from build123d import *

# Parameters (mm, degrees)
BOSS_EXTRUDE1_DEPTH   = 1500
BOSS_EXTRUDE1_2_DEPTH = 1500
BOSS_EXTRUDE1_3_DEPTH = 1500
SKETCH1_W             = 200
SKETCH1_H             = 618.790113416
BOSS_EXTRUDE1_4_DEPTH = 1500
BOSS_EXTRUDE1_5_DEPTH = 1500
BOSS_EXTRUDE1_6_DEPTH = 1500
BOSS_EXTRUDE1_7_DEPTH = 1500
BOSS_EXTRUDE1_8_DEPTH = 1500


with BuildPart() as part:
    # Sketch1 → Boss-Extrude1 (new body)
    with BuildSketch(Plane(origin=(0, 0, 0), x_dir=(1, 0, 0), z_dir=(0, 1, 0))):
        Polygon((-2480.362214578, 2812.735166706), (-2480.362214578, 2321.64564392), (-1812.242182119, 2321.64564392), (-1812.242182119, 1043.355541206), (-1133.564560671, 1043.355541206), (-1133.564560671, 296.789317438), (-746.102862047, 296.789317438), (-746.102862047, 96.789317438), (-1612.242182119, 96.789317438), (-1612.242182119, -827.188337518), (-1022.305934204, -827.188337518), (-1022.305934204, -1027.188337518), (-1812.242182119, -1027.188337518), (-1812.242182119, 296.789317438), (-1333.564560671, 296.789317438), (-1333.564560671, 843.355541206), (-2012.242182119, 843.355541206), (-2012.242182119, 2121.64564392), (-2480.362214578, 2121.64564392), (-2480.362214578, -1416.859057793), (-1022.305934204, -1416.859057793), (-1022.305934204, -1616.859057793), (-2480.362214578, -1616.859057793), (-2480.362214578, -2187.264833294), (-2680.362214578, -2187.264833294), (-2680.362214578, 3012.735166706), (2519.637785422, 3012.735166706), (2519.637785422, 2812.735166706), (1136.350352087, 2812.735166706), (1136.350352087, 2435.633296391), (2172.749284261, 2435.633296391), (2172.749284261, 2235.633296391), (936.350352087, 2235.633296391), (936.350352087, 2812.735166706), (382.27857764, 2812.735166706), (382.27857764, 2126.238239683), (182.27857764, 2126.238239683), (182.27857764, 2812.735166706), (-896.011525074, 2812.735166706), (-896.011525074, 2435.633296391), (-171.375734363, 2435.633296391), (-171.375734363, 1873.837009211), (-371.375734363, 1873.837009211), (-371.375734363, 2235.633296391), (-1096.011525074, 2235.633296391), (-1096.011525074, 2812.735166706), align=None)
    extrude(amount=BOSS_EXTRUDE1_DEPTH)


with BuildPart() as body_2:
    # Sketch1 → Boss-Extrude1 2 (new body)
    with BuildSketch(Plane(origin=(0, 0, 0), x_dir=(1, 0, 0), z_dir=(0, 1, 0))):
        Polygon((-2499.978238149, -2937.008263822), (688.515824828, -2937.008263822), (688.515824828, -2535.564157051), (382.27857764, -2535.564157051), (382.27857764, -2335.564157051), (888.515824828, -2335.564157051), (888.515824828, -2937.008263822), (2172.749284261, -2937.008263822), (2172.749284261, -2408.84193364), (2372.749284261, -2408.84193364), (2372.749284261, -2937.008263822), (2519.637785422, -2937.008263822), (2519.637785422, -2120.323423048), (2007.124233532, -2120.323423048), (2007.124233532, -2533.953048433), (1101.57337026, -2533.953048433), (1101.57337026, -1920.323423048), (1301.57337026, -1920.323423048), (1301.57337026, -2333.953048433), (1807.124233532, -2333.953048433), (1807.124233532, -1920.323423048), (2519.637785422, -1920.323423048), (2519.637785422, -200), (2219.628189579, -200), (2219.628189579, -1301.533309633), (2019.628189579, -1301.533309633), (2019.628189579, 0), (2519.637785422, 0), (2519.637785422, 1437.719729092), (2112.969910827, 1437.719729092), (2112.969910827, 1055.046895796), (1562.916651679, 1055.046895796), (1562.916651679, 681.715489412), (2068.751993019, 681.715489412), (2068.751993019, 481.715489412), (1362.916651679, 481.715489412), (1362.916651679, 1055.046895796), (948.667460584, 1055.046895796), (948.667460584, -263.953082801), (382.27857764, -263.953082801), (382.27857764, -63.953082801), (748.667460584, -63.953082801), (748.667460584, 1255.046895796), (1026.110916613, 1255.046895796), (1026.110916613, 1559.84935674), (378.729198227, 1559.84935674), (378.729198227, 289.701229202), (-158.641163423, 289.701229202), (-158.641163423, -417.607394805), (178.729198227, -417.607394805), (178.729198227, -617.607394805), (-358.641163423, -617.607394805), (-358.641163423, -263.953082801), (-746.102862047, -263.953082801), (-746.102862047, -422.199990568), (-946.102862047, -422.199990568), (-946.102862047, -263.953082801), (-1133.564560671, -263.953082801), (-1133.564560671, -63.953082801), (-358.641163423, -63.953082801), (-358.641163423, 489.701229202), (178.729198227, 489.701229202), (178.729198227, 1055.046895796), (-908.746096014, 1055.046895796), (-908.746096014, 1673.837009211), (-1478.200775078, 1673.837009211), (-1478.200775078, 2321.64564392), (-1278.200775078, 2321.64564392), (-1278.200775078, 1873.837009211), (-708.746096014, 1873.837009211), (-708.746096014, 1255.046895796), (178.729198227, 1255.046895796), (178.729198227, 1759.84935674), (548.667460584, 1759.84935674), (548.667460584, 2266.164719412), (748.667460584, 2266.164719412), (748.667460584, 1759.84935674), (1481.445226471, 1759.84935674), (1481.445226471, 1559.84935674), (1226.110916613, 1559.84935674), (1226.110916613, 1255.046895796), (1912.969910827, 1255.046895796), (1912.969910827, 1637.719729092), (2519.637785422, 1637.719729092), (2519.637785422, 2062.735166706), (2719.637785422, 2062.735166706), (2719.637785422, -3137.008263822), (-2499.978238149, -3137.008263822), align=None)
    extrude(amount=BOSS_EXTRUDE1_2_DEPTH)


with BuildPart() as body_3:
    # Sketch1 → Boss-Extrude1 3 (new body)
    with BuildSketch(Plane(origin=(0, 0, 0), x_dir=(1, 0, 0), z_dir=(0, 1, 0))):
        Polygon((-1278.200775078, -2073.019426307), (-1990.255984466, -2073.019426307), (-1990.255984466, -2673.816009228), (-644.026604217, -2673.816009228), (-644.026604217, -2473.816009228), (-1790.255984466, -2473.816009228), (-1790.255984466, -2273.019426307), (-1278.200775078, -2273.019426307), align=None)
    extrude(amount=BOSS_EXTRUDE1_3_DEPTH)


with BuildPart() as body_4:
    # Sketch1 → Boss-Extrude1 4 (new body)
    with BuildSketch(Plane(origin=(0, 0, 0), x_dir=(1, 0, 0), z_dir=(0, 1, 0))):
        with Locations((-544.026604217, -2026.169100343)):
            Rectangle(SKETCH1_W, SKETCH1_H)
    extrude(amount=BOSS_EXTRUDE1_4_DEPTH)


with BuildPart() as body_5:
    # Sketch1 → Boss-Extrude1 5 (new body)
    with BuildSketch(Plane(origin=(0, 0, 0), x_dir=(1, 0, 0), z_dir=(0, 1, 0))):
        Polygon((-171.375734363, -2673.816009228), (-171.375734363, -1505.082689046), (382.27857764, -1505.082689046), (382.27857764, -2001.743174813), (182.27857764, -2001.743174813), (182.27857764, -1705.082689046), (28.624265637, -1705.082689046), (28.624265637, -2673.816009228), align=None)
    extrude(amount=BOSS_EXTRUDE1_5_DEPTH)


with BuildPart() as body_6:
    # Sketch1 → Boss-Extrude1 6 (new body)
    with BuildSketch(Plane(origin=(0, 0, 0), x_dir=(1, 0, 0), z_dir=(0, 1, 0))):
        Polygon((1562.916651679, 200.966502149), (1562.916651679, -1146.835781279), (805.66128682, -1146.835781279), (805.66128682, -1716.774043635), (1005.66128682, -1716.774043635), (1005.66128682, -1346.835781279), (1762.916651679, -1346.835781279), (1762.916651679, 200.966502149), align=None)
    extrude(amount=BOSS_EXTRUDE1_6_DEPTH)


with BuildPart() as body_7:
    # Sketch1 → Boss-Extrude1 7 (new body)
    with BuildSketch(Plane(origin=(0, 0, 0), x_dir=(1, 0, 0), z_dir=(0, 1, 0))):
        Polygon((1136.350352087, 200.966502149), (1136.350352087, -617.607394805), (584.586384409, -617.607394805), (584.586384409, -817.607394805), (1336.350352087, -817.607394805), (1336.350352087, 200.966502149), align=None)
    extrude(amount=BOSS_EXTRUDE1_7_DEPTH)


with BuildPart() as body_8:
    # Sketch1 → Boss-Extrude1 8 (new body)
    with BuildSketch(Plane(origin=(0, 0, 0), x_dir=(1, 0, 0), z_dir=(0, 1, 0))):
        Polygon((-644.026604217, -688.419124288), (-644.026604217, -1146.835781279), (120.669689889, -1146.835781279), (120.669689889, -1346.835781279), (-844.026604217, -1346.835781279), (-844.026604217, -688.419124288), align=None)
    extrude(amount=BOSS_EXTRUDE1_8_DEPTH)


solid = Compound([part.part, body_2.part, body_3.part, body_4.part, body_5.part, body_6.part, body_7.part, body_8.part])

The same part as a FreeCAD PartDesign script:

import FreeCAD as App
import Part
import Sketcher
from FreeCAD import Vector


def add_polygon(sketch, points):
    """Adds a closed chain of lines whose ends are joined by coincident constraints."""
    first, n = sketch.GeometryCount, len(points)
    for a, b in zip(points, points[1:] + points[:1]):
        sketch.addGeometry(Part.LineSegment(App.Vector(*a, 0), App.Vector(*b, 0)), False)
    for i in range(n):
        sketch.addConstraint(Sketcher.Constraint("Coincident", first + i, 2, first + (i + 1) % n, 1))

doc = App.newDocument("Part")
body = doc.addObject("PartDesign::Body", "Body")

sketch1 = body.newObject("Sketcher::SketchObject", "Sketch")
sketch1.AttachmentSupport = (doc.getObject("XZ_Plane"), [""])
sketch1.MapMode = "FlatFace"
add_polygon(sketch1, [(-2480, -2322), (-2480, -2813), (-1096, -2813), (-1096, -2236), (-371, -2236), (-371, -1874), (-171, -1874), (-171, -2436), (-896, -2436), (-896, -2813), (182, -2813), (182, -2126), (382, -2126), (382, -2813), (936, -2813), (936, -2236), (2173, -2236), (2173, -2436), (1136, -2436), (1136, -2813), (2520, -2813), (2520, -3013), (-2680, -3013), (-2680, 2187), (-2480, 2187), (-2480, 1617), (-1022, 1617), (-1022, 1417), (-2480, 1417), (-2480, -2122), (-2012, -2122), (-2012, -843), (-1334, -843), (-1334, -297), (-1812, -297), (-1812, 1027), (-1022, 1027), (-1022, 827), (-1612, 827), (-1612, -97), (-746, -97), (-746, -297), (-1134, -297), (-1134, -1043), (-1812, -1043), (-1812, -2322)])
sketch1.addConstraint([
    Sketcher.Constraint("Vertical", 0),
    Sketcher.Constraint("Horizontal", 1),
    Sketcher.Constraint("Vertical", 2),
    Sketcher.Constraint("Horizontal", 3),
    Sketcher.Constraint("Vertical", 4),
    Sketcher.Constraint("Horizontal", 5),
    Sketcher.Constraint("Vertical", 6),
    Sketcher.Constraint("Horizontal", 7),
    Sketcher.Constraint("Vertical", 8),
    Sketcher.Constraint("Horizontal", 9),
    Sketcher.Constraint("Vertical", 10),
    Sketcher.Constraint("Horizontal", 11),
    Sketcher.Constraint("Vertical", 12),
    Sketcher.Constraint("Horizontal", 13),
    Sketcher.Constraint("Vertical", 14),
    Sketcher.Constraint("Horizontal", 15),
    Sketcher.Constraint("Vertical", 16),
    Sketcher.Constraint("Horizontal", 17),
    Sketcher.Constraint("Vertical", 18),
    Sketcher.Constraint("Horizontal", 19),
    Sketcher.Constraint("Vertical", 20),
    Sketcher.Constraint("Horizontal", 21),
    Sketcher.Constraint("Vertical", 22),
    Sketcher.Constraint("Horizontal", 23),
    Sketcher.Constraint("Vertical", 24),
    Sketcher.Constraint("Horizontal", 25),
    Sketcher.Constraint("Vertical", 26),
    Sketcher.Constraint("Horizontal", 27),
    Sketcher.Constraint("Vertical", 28),
    Sketcher.Constraint("Horizontal", 29),
    Sketcher.Constraint("Vertical", 30),
    Sketcher.Constraint("Horizontal", 31),
    Sketcher.Constraint("Vertical", 32),
    Sketcher.Constraint("Horizontal", 33),
    Sketcher.Constraint("Vertical", 34),
    Sketcher.Constraint("Horizontal", 35),
    Sketcher.Constraint("Vertical", 36),
    Sketcher.Constraint("Horizontal", 37),
    Sketcher.Constraint("Vertical", 38),
    Sketcher.Constraint("Horizontal", 39),
    Sketcher.Constraint("Vertical", 40),
    Sketcher.Constraint("Horizontal", 41),
    Sketcher.Constraint("Vertical", 42),
    Sketcher.Constraint("Horizontal", 43),
    Sketcher.Constraint("Vertical", 44),
    Sketcher.Constraint("Horizontal", 45),
    Sketcher.Constraint("Horizontal", 1, 2, 8, 2),
    Sketcher.Constraint("Horizontal", 9, 2, 12, 2),
    Sketcher.Constraint("Horizontal", 3, 2, 14, 2),
    Sketcher.Constraint("Horizontal", 7, 2, 16, 2),
    Sketcher.Constraint("Horizontal", 13, 2, 18, 2),
    Sketcher.Constraint("Horizontal", 33, 2, 40, 2),
    Sketcher.Constraint("Vertical", 0, 2, 23, 2),
    Sketcher.Constraint("Vertical", 24, 2, 27, 2),
    Sketcher.Constraint("Vertical", 26, 2, 35, 2),
    Sketcher.Constraint("Vertical", 34, 2, 43, 2),
    Sketcher.Constraint("Equal", 3, 7),
    Sketcher.Constraint("Equal", 5, 11),
    Sketcher.Constraint("Equal", 11, 23),
    Sketcher.Constraint("Equal", 31, 43),
    Sketcher.Constraint("Equal", 23, 16),
    Sketcher.Constraint("Equal", 16, 20),
    Sketcher.Constraint("Equal", 21, 22),
    Sketcher.Constraint("Equal", 20, 26),
    Sketcher.Constraint("Equal", 26, 36),
    Sketcher.Constraint("Equal", 36, 40),
    Sketcher.Constraint("Equal", 30, 44),
    Sketcher.Constraint("DistanceX", 5, 1, 5, 2, 200.0),
    Sketcher.Constraint("DistanceX", 21, 2, 21, 1, 5200.0),
    Sketcher.Constraint("DistanceX", 14, 2, 17, 2, 200.0),
    Sketcher.Constraint("DistanceX", 30, 2, 33, 2, 200.0),
    Sketcher.Constraint("DistanceX", 34, 2, 37, 2, 200.0),
    Sketcher.Constraint("DistanceY", 42, 2, 31, 2, 200.0),
    Sketcher.Constraint("DistanceX", 41, 2, 41, 1, 387.461699),
    Sketcher.Constraint("DistanceY", 28, 2, 28, 1, 3538.504702),
    Sketcher.Constraint("DistanceX", 1, 1, 1, 2, 1384.35069),
    Sketcher.Constraint("DistanceX", 3, 1, 3, 2, 724.635791),
    Sketcher.Constraint("DistanceX", 25, 1, 25, 2, 1458.05628),
    Sketcher.Constraint("DistanceX", 31, 1, 31, 2, 678.677621),
    Sketcher.Constraint("DistanceY", 2, 1, 2, 2, 577.10187),
    Sketcher.Constraint("DistanceX", 16, 2, 19, 2, 346.888501),
    Sketcher.Constraint("DistanceX", 9, 1, 9, 2, 1078.290103),
    Sketcher.Constraint("DistanceX", 13, 1, 13, 2, 554.071774),
    Sketcher.Constraint("DistanceX", 29, 1, 29, 2, 468.120032),
    Sketcher.Constraint("DistanceY", 0, 2, 0, 1, 491.089523),
    Sketcher.Constraint("DistanceY", 4, 1, 4, 2, 361.796287),
    Sketcher.Constraint("DistanceY", 10, 1, 10, 2, 686.496927),
    Sketcher.Constraint("DistanceY", 30, 1, 30, 2, 1278.290103),
    Sketcher.Constraint("DistanceY", 32, 1, 32, 2, 546.566224),
    Sketcher.Constraint("DistanceY", 34, 1, 34, 2, 1323.977655),
    Sketcher.Constraint("DistanceY", 4, 2, -1, 1, 1873.837009),
    Sketcher.Constraint("DistanceX", 31, 2, -1, 1, 1333.564561),
])
pad1 = body.newObject("PartDesign::Pad", "Pad")
pad1.Profile = sketch1
pad1.Length = 1500
pad1.Reversed = True
body2 = doc.addObject("PartDesign::Body", "Body001")

sketch2 = body2.newObject("Sketcher::SketchObject", "Sketch001")
sketch2.AttachmentSupport = (doc.getObject("XZ_Plane001"), [""])
sketch2.MapMode = "FlatFace"
add_polygon(sketch2, [(689, 2937), (-2500, 2937), (-2500, 3137), (2720, 3137), (2720, -2063), (2520, -2063), (2520, -1638), (1913, -1638), (1913, -1255), (1226, -1255), (1226, -1560), (1481, -1560), (1481, -1760), (749, -1760), (749, -2266), (549, -2266), (549, -1760), (179, -1760), (179, -1255), (-709, -1255), (-709, -1874), (-1278, -1874), (-1278, -2322), (-1478, -2322), (-1478, -1674), (-909, -1674), (-909, -1055), (179, -1055), (179, -490), (-359, -490), (-359, 64), (-1134, 64), (-1134, 264), (-946, 264), (-946, 422), (-746, 422), (-746, 264), (-359, 264), (-359, 618), (179, 618), (179, 418), (-159, 418), (-159, -290), (379, -290), (379, -1560), (1026, -1560), (1026, -1255), (749, -1255), (749, 64), (382, 64), (382, 264), (949, 264), (949, -1055), (1363, -1055), (1363, -482), (2069, -482), (2069, -682), (1563, -682), (1563, -1055), (2113, -1055), (2113, -1438), (2520, -1438), (2520, 0), (2020, 0), (2020, 1302), (2220, 1302), (2220, 200), (2520, 200), (2520, 1920), (1807, 1920), (1807, 2334), (1302, 2334), (1302, 1920), (1102, 1920), (1102, 2534), (2007, 2534), (2007, 2120), (2520, 2120), (2520, 2937), (2373, 2937), (2373, 2409), (2173, 2409), (2173, 2937), (889, 2937), (889, 2336), (382, 2336), (382, 2536), (689, 2536)])
sketch2.addConstraint([
    Sketcher.Constraint("Horizontal", 0),
    Sketcher.Constraint("Vertical", 1),
    Sketcher.Constraint("Horizontal", 2),
    Sketcher.Constraint("Vertical", 3),
    Sketcher.Constraint("Horizontal", 4),
    Sketcher.Constraint("Vertical", 5),
    Sketcher.Constraint("Horizontal", 6),
    Sketcher.Constraint("Vertical", 7),
    Sketcher.Constraint("Horizontal", 8),
    Sketcher.Constraint("Vertical", 9),
    Sketcher.Constraint("Horizontal", 10),
    Sketcher.Constraint("Vertical", 11),
    Sketcher.Constraint("Horizontal", 12),
    Sketcher.Constraint("Vertical", 13),
    Sketcher.Constraint("Horizontal", 14),
    Sketcher.Constraint("Vertical", 15),
    Sketcher.Constraint("Horizontal", 16),
    Sketcher.Constraint("Vertical", 17),
    Sketcher.Constraint("Horizontal", 18),
    Sketcher.Constraint("Vertical", 19),
    Sketcher.Constraint("Horizontal", 20),
    Sketcher.Constraint("Vertical", 21),
    Sketcher.Constraint("Horizontal", 22),
    Sketcher.Constraint("Vertical", 23),
    Sketcher.Constraint("Horizontal", 24),
    Sketcher.Constraint("Vertical", 25),
    Sketcher.Constraint("Horizontal", 26),
    Sketcher.Constraint("Vertical", 27),
    Sketcher.Constraint("Horizontal", 28),
    Sketcher.Constraint("Vertical", 29),
    Sketcher.Constraint("Horizontal", 30),
    Sketcher.Constraint("Vertical", 31),
    Sketcher.Constraint("Horizontal", 32),
    Sketcher.Constraint("Vertical", 33),
    Sketcher.Constraint("Horizontal", 34),
    Sketcher.Constraint("Vertical", 35),
    Sketcher.Constraint("Horizontal", 36),
    Sketcher.Constraint("Vertical", 37),
    Sketcher.Constraint("Horizontal", 38),
    Sketcher.Constraint("Vertical", 39),
    Sketcher.Constraint("Horizontal", 40),
    Sketcher.Constraint("Vertical", 41),
    Sketcher.Constraint("Horizontal", 42),
    Sketcher.Constraint("Vertical", 43),
    Sketcher.Constraint("Horizontal", 44),
    Sketcher.Constraint("Vertical", 45),
    Sketcher.Constraint("Horizontal", 46),
    Sketcher.Constraint("Vertical", 47),
    Sketcher.Constraint("Horizontal", 48),
    Sketcher.Constraint("Vertical", 49),
    Sketcher.Constraint("Horizontal", 50),
    Sketcher.Constraint("Vertical", 51),
    Sketcher.Constraint("Horizontal", 52),
    Sketcher.Constraint("Vertical", 53),
    Sketcher.Constraint("Horizontal", 54),
    Sketcher.Constraint("Vertical", 55),
    Sketcher.Constraint("Horizontal", 56),
    Sketcher.Constraint("Vertical", 57),
    Sketcher.Constraint("Horizontal", 58),
    Sketcher.Constraint("Vertical", 59),
    Sketcher.Constraint("Horizontal", 60),
    Sketcher.Constraint("Vertical", 61),
    Sketcher.Constraint("Horizontal", 62),
    Sketcher.Constraint("Vertical", 63),
    Sketcher.Constraint("Horizontal", 64),
    Sketcher.Constraint("Vertical", 65),
    Sketcher.Constraint("Horizontal", 66),
    Sketcher.Constraint("Vertical", 67),
    Sketcher.Constraint("Horizontal", 68),
    Sketcher.Constraint("Vertical", 69),
    Sketcher.Constraint("Horizontal", 70),
    Sketcher.Constraint("Vertical", 71),
    Sketcher.Constraint("Horizontal", 72),
    Sketcher.Constraint("Vertical", 73),
    Sketcher.Constraint("Horizontal", 74),
    Sketcher.Constraint("Vertical", 75),
    Sketcher.Constraint("Horizontal", 76),
    Sketcher.Constraint("Vertical", 77),
    Sketcher.Constraint("Horizontal", 78),
    Sketcher.Constraint("Vertical", 79),
    Sketcher.Constraint("Horizontal", 80),
    Sketcher.Constraint("Vertical", 81),
    Sketcher.Constraint("Horizontal", 82),
    Sketcher.Constraint("Vertical", 83),
    Sketcher.Constraint("Horizontal", 84),
    Sketcher.Constraint("Vertical", 85),
    Sketcher.Constraint("Horizontal", 86),
    Sketcher.Constraint("Vertical", 87),
    Sketcher.Constraint("PointOnObject", 61, 2, -1),
    Sketcher.Constraint("Horizontal", 12, 2, 15, 2),
    Sketcher.Constraint("Horizontal", 8, 2, 17, 2),
    Sketcher.Constraint("Horizontal", 32, 2, 35, 2),
    Sketcher.Constraint("Horizontal", 10, 2, 43, 2),
    Sketcher.Constraint("Horizontal", 18, 2, 45, 2),
    Sketcher.Constraint("Horizontal", 30, 2, 47, 2),
    Sketcher.Constraint("Horizontal", 36, 2, 49, 2),
    Sketcher.Constraint("Horizontal", 26, 2, 51, 2),
    Sketcher.Constraint("Horizontal", 52, 2, 57, 2),
    Sketcher.Constraint("Horizontal", 68, 2, 71, 2),
    Sketcher.Constraint("Horizontal", 0, 2, 77, 2),
    Sketcher.Constraint("Horizontal", 78, 2, 81, 2),
    Sketcher.Constraint("Vertical", 17, 2, 26, 2),
    Sketcher.Constraint("Vertical", 29, 2, 36, 2),
    Sketcher.Constraint("Vertical", 27, 2, 38, 2),
    Sketcher.Constraint("Vertical", 13, 2, 46, 2),
    Sketcher.Constraint("Vertical", 5, 2, 60, 2),
    Sketcher.Constraint("Vertical", 61, 2, 66, 2),
    Sketcher.Constraint("Vertical", 67, 2, 76, 2),
    Sketcher.Constraint("Vertical", 49, 2, 84, 2),
    Sketcher.Constraint("Equal", 4, 14),
    Sketcher.Constraint("Equal", 14, 22),
    Sketcher.Constraint("Equal", 20, 24),
    Sketcher.Constraint("Equal", 22, 34),
    Sketcher.Constraint("Equal", 38, 42),
    Sketcher.Constraint("Equal", 34, 64),
    Sketcher.Constraint("Equal", 64, 72),
    Sketcher.Constraint("Equal", 72, 80),
    Sketcher.Constraint("Equal", 80, 1),
    Sketcher.Constraint("Equal", 1, 11),
    Sketcher.Constraint("Equal", 19, 25),
    Sketcher.Constraint("Equal", 11, 31),
    Sketcher.Constraint("Equal", 31, 39),
    Sketcher.Constraint("Equal", 47, 51),
    Sketcher.Constraint("Equal", 49, 55),
    Sketcher.Constraint("Equal", 7, 59),
    Sketcher.Constraint("Equal", 71, 75),
    Sketcher.Constraint("Equal", 55, 85),
    Sketcher.Constraint("DistanceX", 4, 2, 4, 1, 200.0),
    Sketcher.Constraint("DistanceY", -1, 1, 65, 2, 200.0),
    Sketcher.Constraint("DistanceX", 32, 1, 32, 2, 187.461699),
    Sketcher.Constraint("DistanceX", 36, 1, 36, 2, 387.461699),
    Sketcher.Constraint("DistanceX", 78, 2, 78, 1, 146.888501),
    Sketcher.Constraint("DistanceX", 10, 1, 10, 2, 255.33431),
    Sketcher.Constraint("DistanceX", 20, 2, 20, 1, 569.454679),
    Sketcher.Constraint("DistanceX", 28, 2, 28, 1, 537.370362),
    Sketcher.Constraint("DistanceX", 40, 2, 40, 1, 337.370362),
    Sketcher.Constraint("DistanceX", 44, 1, 44, 2, 647.381718),
    Sketcher.Constraint("DistanceX", 52, 1, 52, 2, 414.249191),
    Sketcher.Constraint("DistanceX", 54, 1, 54, 2, 705.835341),
    Sketcher.Constraint("DistanceX", 56, 2, 56, 1, 505.835341),
    Sketcher.Constraint("DistanceX", 58, 1, 58, 2, 550.053259),
    Sketcher.Constraint("DistanceX", 68, 2, 68, 1, 712.513552),
    Sketcher.Constraint("DistanceX", 76, 1, 76, 2, 512.513552),
    Sketcher.Constraint("DistanceX", 82, 2, 82, 1, 1284.233459),
    Sketcher.Constraint("DistanceY", 3, 2, 3, 1, 5199.743431),
    Sketcher.Constraint("DistanceY", 9, 2, 9, 1, 304.802461),
    Sketcher.Constraint("DistanceY", 47, 1, 47, 2, 1318.999979),
    Sketcher.Constraint("DistanceY", 61, 1, 61, 2, 1437.719729),
    Sketcher.Constraint("DistanceY", 63, 1, 63, 2, 1301.53331),
    Sketcher.Constraint("DistanceY", 77, 1, 77, 2, 816.684841),
    Sketcher.Constraint("DistanceY", 79, 2, 79, 1, 528.16633),
    Sketcher.Constraint("DistanceX", -1, 1, 16, 2, 178.729198),
    Sketcher.Constraint("DistanceX", 0, 2, 0, 1, 3188.494063),
    Sketcher.Constraint("DistanceX", 2, 1, 2, 2, 5219.616024),
    Sketcher.Constraint("DistanceX", 6, 2, 6, 1, 606.667875),
    Sketcher.Constraint("DistanceX", 8, 2, 8, 1, 686.858994),
    Sketcher.Constraint("DistanceX", 12, 2, 12, 1, 732.777766),
    Sketcher.Constraint("DistanceX", 16, 2, 16, 1, 369.938262),
    Sketcher.Constraint("DistanceX", 18, 2, 18, 1, 887.475294),
    Sketcher.Constraint("DistanceX", 48, 2, 48, 1, 366.388883),
    Sketcher.Constraint("DistanceX", 50, 1, 50, 2, 566.388883),
    Sketcher.Constraint("DistanceX", 62, 2, 62, 1, 500.009596),
    Sketcher.Constraint("DistanceX", 70, 2, 70, 1, 505.550863),
    Sketcher.Constraint("DistanceY", 5, 1, 5, 2, 425.015438),
    Sketcher.Constraint("DistanceY", 7, 1, 7, 2, 382.672833),
    Sketcher.Constraint("DistanceY", 13, 2, 13, 1, 506.315363),
    Sketcher.Constraint("DistanceY", 19, 2, 19, 1, 618.790113),
    Sketcher.Constraint("DistanceY", 21, 2, 21, 1, 447.808635),
    Sketcher.Constraint("DistanceY", 27, 1, 27, 2, 565.345667),
    Sketcher.Constraint("DistanceY", 33, 1, 33, 2, 158.246908),
    Sketcher.Constraint("DistanceY", 37, 1, 37, 2, 353.654312),
    Sketcher.Constraint("DistanceY", 41, 2, 41, 1, 707.308624),
    Sketcher.Constraint("DistanceY", 53, 1, 53, 2, 573.331406),
    Sketcher.Constraint("DistanceY", 67, 1, 67, 2, 1720.323423),
    Sketcher.Constraint("DistanceY", 69, 1, 69, 2, 413.629625),
    Sketcher.Constraint("DistanceY", 83, 2, 83, 1, 601.444107),
])
pad2 = body2.newObject("PartDesign::Pad", "Pad001")
pad2.Profile = sketch2
pad2.Length = 1500
pad2.Reversed = True
body3 = doc.addObject("PartDesign::Body", "Body002")

sketch3 = body3.newObject("Sketcher::SketchObject", "Sketch002")
sketch3.AttachmentSupport = (doc.getObject("XZ_Plane002"), [""])
sketch3.MapMode = "FlatFace"
add_polygon(sketch3, [(-1278, 2073), (-1990, 2073), (-1990, 2674), (-644, 2674), (-644, 2474), (-1790, 2474), (-1790, 2273), (-1278, 2273)])
sketch3.addConstraint([
    Sketcher.Constraint("Horizontal", 0),
    Sketcher.Constraint("Vertical", 1),
    Sketcher.Constraint("Horizontal", 2),
    Sketcher.Constraint("Vertical", 3),
    Sketcher.Constraint("Horizontal", 4),
    Sketcher.Constraint("Vertical", 5),
    Sketcher.Constraint("Horizontal", 6),
    Sketcher.Constraint("Vertical", 7),
    Sketcher.Constraint("Equal", 3, 7),
    Sketcher.Constraint("DistanceY", 3, 2, 3, 1, 200.0),
    Sketcher.Constraint("DistanceX", 1, 2, 4, 2, 200.0),
    Sketcher.Constraint("DistanceX", 0, 2, 0, 1, 712.055209),
    Sketcher.Constraint("DistanceX", 2, 1, 2, 2, 1346.22938),
    Sketcher.Constraint("DistanceY", 1, 1, 1, 2, 600.796583),
    Sketcher.Constraint("DistanceY", -1, 1, 1, 2, 2673.816009),
    Sketcher.Constraint("DistanceX", 0, 2, -1, 1, 1990.255984),
])
pad3 = body3.newObject("PartDesign::Pad", "Pad002")
pad3.Profile = sketch3
pad3.Length = 1500
pad3.Reversed = True
body4 = doc.addObject("PartDesign::Body", "Body003")

sketch4 = body4.newObject("Sketcher::SketchObject", "Sketch003")
sketch4.AttachmentSupport = (doc.getObject("XZ_Plane003"), [""])
sketch4.MapMode = "FlatFace"
add_polygon(sketch4, [(-644, 1717), (-644, 2336), (-444, 2336), (-444, 1717)])
sketch4.addConstraint([
    Sketcher.Constraint("Vertical", 0),
    Sketcher.Constraint("Horizontal", 1),
    Sketcher.Constraint("Vertical", 2),
    Sketcher.Constraint("Horizontal", 3),
    Sketcher.Constraint("DistanceX", 1, 1, 1, 2, 200.0),
    Sketcher.Constraint("DistanceY", 0, 1, 0, 2, 618.790113),
    Sketcher.Constraint("DistanceX", 0, 2, -1, 1, 644.026604),
    Sketcher.Constraint("DistanceY", -1, 1, 0, 2, 2335.564157),
])
pad4 = body4.newObject("PartDesign::Pad", "Pad003")
pad4.Profile = sketch4
pad4.Length = 1500
pad4.Reversed = True
body5 = doc.addObject("PartDesign::Body", "Body004")

sketch5 = body5.newObject("Sketcher::SketchObject", "Sketch004")
sketch5.AttachmentSupport = (doc.getObject("XZ_Plane004"), [""])
sketch5.MapMode = "FlatFace"
add_polygon(sketch5, [(-171, 1505), (-171, 2674), (29, 2674), (29, 1705), (182, 1705), (182, 2002), (382, 2002), (382, 1505)])
sketch5.addConstraint([
    Sketcher.Constraint("Vertical", 0),
    Sketcher.Constraint("Horizontal", 1),
    Sketcher.Constraint("Vertical", 2),
    Sketcher.Constraint("Horizontal", 3),
    Sketcher.Constraint("Vertical", 4),
    Sketcher.Constraint("Horizontal", 5),
    Sketcher.Constraint("Vertical", 6),
    Sketcher.Constraint("Horizontal", 7),
    Sketcher.Constraint("Equal", 1, 5),
    Sketcher.Constraint("DistanceX", 1, 1, 1, 2, 200.0),
    Sketcher.Constraint("DistanceY", 6, 2, 3, 2, 200.0),
    Sketcher.Constraint("DistanceY", 0, 1, 0, 2, 1168.73332),
    Sketcher.Constraint("DistanceX", 3, 1, 3, 2, 153.654312),
    Sketcher.Constraint("DistanceY", 4, 1, 4, 2, 296.660486),
    Sketcher.Constraint("DistanceY", -1, 1, 0, 2, 2673.816009),
    Sketcher.Constraint("DistanceX", 0, 2, -1, 1, 171.375734),
])
pad5 = body5.newObject("PartDesign::Pad", "Pad004")
pad5.Profile = sketch5
pad5.Length = 1500
pad5.Reversed = True
body6 = doc.addObject("PartDesign::Body", "Body005")

sketch6 = body6.newObject("Sketcher::SketchObject", "Sketch005")
sketch6.AttachmentSupport = (doc.getObject("XZ_Plane005"), [""])
sketch6.MapMode = "FlatFace"
add_polygon(sketch6, [(1563, -201), (1563, 1147), (806, 1147), (806, 1717), (1006, 1717), (1006, 1347), (1763, 1347), (1763, -201)])
sketch6.addConstraint([
    Sketcher.Constraint("Vertical", 0),
    Sketcher.Constraint("Horizontal", 1),
    Sketcher.Constraint("Vertical", 2),
    Sketcher.Constraint("Horizontal", 3),
    Sketcher.Constraint("Vertical", 4),
    Sketcher.Constraint("Horizontal", 5),
    Sketcher.Constraint("Vertical", 6),
    Sketcher.Constraint("Horizontal", 7),
    Sketcher.Constraint("Equal", 1, 5),
    Sketcher.Constraint("DistanceX", 3, 1, 3, 2, 200.0),
    Sketcher.Constraint("DistanceY", 1, 2, 4, 2, 200.0),
    Sketcher.Constraint("DistanceX", 1, 2, 1, 1, 757.255365),
    Sketcher.Constraint("DistanceY", 0, 1, 0, 2, 1347.802283),
    Sketcher.Constraint("DistanceY", 2, 1, 2, 2, 569.938262),
    Sketcher.Constraint("DistanceX", -1, 1, 0, 2, 1562.916652),
    Sketcher.Constraint("DistanceY", -1, 1, 0, 2, 1146.835781),
])
pad6 = body6.newObject("PartDesign::Pad", "Pad005")
pad6.Profile = sketch6
pad6.Length = 1500
pad6.Reversed = True
body7 = doc.addObject("PartDesign::Body", "Body006")

sketch7 = body7.newObject("Sketcher::SketchObject", "Sketch006")
sketch7.AttachmentSupport = (doc.getObject("XZ_Plane006"), [""])
sketch7.MapMode = "FlatFace"
add_polygon(sketch7, [(1136, -201), (1136, 618), (585, 618), (585, 818), (1336, 818), (1336, -201)])
sketch7.addConstraint([
    Sketcher.Constraint("Vertical", 0),
    Sketcher.Constraint("Horizontal", 1),
    Sketcher.Constraint("Vertical", 2),
    Sketcher.Constraint("Horizontal", 3),
    Sketcher.Constraint("Vertical", 4),
    Sketcher.Constraint("Horizontal", 5),
    Sketcher.Constraint("Equal", 5, 2),
    Sketcher.Constraint("DistanceX", 5, 2, 5, 1, 200.0),
    Sketcher.Constraint("DistanceX", 1, 2, 1, 1, 551.763968),
    Sketcher.Constraint("DistanceY", 0, 1, 0, 2, 818.573897),
    Sketcher.Constraint("DistanceX", -1, 1, 0, 2, 1136.350352),
    Sketcher.Constraint("DistanceY", -1, 1, 0, 2, 617.607395),
])
pad7 = body7.newObject("PartDesign::Pad", "Pad006")
pad7.Profile = sketch7
pad7.Length = 1500
pad7.Reversed = True
body8 = doc.addObject("PartDesign::Body", "Body007")

sketch8 = body8.newObject("Sketcher::SketchObject", "Sketch007")
sketch8.AttachmentSupport = (doc.getObject("XZ_Plane007"), [""])
sketch8.MapMode = "FlatFace"
add_polygon(sketch8, [(-644, 1147), (-644, 688), (-844, 688), (-844, 1347), (121, 1347), (121, 1147)])
sketch8.addConstraint([
    Sketcher.Constraint("Vertical", 0),
    Sketcher.Constraint("Horizontal", 1),
    Sketcher.Constraint("Vertical", 2),
    Sketcher.Constraint("Horizontal", 3),
    Sketcher.Constraint("Vertical", 4),
    Sketcher.Constraint("Horizontal", 5),
    Sketcher.Constraint("Equal", 1, 4),
    Sketcher.Constraint("DistanceX", 1, 2, 1, 1, 200.0),
    Sketcher.Constraint("DistanceX", 3, 1, 3, 2, 964.696294),
    Sketcher.Constraint("DistanceY", 0, 2, 0, 1, 458.416657),
    Sketcher.Constraint("DistanceY", -1, 1, 2, 2, 1346.835781),
    Sketcher.Constraint("DistanceX", -1, 1, 3, 2, 120.66969),
])
pad8 = body8.newObject("PartDesign::Pad", "Pad007")
pad8.Profile = sketch8
pad8.Length = 1500
pad8.Reversed = True

doc.recompute()
